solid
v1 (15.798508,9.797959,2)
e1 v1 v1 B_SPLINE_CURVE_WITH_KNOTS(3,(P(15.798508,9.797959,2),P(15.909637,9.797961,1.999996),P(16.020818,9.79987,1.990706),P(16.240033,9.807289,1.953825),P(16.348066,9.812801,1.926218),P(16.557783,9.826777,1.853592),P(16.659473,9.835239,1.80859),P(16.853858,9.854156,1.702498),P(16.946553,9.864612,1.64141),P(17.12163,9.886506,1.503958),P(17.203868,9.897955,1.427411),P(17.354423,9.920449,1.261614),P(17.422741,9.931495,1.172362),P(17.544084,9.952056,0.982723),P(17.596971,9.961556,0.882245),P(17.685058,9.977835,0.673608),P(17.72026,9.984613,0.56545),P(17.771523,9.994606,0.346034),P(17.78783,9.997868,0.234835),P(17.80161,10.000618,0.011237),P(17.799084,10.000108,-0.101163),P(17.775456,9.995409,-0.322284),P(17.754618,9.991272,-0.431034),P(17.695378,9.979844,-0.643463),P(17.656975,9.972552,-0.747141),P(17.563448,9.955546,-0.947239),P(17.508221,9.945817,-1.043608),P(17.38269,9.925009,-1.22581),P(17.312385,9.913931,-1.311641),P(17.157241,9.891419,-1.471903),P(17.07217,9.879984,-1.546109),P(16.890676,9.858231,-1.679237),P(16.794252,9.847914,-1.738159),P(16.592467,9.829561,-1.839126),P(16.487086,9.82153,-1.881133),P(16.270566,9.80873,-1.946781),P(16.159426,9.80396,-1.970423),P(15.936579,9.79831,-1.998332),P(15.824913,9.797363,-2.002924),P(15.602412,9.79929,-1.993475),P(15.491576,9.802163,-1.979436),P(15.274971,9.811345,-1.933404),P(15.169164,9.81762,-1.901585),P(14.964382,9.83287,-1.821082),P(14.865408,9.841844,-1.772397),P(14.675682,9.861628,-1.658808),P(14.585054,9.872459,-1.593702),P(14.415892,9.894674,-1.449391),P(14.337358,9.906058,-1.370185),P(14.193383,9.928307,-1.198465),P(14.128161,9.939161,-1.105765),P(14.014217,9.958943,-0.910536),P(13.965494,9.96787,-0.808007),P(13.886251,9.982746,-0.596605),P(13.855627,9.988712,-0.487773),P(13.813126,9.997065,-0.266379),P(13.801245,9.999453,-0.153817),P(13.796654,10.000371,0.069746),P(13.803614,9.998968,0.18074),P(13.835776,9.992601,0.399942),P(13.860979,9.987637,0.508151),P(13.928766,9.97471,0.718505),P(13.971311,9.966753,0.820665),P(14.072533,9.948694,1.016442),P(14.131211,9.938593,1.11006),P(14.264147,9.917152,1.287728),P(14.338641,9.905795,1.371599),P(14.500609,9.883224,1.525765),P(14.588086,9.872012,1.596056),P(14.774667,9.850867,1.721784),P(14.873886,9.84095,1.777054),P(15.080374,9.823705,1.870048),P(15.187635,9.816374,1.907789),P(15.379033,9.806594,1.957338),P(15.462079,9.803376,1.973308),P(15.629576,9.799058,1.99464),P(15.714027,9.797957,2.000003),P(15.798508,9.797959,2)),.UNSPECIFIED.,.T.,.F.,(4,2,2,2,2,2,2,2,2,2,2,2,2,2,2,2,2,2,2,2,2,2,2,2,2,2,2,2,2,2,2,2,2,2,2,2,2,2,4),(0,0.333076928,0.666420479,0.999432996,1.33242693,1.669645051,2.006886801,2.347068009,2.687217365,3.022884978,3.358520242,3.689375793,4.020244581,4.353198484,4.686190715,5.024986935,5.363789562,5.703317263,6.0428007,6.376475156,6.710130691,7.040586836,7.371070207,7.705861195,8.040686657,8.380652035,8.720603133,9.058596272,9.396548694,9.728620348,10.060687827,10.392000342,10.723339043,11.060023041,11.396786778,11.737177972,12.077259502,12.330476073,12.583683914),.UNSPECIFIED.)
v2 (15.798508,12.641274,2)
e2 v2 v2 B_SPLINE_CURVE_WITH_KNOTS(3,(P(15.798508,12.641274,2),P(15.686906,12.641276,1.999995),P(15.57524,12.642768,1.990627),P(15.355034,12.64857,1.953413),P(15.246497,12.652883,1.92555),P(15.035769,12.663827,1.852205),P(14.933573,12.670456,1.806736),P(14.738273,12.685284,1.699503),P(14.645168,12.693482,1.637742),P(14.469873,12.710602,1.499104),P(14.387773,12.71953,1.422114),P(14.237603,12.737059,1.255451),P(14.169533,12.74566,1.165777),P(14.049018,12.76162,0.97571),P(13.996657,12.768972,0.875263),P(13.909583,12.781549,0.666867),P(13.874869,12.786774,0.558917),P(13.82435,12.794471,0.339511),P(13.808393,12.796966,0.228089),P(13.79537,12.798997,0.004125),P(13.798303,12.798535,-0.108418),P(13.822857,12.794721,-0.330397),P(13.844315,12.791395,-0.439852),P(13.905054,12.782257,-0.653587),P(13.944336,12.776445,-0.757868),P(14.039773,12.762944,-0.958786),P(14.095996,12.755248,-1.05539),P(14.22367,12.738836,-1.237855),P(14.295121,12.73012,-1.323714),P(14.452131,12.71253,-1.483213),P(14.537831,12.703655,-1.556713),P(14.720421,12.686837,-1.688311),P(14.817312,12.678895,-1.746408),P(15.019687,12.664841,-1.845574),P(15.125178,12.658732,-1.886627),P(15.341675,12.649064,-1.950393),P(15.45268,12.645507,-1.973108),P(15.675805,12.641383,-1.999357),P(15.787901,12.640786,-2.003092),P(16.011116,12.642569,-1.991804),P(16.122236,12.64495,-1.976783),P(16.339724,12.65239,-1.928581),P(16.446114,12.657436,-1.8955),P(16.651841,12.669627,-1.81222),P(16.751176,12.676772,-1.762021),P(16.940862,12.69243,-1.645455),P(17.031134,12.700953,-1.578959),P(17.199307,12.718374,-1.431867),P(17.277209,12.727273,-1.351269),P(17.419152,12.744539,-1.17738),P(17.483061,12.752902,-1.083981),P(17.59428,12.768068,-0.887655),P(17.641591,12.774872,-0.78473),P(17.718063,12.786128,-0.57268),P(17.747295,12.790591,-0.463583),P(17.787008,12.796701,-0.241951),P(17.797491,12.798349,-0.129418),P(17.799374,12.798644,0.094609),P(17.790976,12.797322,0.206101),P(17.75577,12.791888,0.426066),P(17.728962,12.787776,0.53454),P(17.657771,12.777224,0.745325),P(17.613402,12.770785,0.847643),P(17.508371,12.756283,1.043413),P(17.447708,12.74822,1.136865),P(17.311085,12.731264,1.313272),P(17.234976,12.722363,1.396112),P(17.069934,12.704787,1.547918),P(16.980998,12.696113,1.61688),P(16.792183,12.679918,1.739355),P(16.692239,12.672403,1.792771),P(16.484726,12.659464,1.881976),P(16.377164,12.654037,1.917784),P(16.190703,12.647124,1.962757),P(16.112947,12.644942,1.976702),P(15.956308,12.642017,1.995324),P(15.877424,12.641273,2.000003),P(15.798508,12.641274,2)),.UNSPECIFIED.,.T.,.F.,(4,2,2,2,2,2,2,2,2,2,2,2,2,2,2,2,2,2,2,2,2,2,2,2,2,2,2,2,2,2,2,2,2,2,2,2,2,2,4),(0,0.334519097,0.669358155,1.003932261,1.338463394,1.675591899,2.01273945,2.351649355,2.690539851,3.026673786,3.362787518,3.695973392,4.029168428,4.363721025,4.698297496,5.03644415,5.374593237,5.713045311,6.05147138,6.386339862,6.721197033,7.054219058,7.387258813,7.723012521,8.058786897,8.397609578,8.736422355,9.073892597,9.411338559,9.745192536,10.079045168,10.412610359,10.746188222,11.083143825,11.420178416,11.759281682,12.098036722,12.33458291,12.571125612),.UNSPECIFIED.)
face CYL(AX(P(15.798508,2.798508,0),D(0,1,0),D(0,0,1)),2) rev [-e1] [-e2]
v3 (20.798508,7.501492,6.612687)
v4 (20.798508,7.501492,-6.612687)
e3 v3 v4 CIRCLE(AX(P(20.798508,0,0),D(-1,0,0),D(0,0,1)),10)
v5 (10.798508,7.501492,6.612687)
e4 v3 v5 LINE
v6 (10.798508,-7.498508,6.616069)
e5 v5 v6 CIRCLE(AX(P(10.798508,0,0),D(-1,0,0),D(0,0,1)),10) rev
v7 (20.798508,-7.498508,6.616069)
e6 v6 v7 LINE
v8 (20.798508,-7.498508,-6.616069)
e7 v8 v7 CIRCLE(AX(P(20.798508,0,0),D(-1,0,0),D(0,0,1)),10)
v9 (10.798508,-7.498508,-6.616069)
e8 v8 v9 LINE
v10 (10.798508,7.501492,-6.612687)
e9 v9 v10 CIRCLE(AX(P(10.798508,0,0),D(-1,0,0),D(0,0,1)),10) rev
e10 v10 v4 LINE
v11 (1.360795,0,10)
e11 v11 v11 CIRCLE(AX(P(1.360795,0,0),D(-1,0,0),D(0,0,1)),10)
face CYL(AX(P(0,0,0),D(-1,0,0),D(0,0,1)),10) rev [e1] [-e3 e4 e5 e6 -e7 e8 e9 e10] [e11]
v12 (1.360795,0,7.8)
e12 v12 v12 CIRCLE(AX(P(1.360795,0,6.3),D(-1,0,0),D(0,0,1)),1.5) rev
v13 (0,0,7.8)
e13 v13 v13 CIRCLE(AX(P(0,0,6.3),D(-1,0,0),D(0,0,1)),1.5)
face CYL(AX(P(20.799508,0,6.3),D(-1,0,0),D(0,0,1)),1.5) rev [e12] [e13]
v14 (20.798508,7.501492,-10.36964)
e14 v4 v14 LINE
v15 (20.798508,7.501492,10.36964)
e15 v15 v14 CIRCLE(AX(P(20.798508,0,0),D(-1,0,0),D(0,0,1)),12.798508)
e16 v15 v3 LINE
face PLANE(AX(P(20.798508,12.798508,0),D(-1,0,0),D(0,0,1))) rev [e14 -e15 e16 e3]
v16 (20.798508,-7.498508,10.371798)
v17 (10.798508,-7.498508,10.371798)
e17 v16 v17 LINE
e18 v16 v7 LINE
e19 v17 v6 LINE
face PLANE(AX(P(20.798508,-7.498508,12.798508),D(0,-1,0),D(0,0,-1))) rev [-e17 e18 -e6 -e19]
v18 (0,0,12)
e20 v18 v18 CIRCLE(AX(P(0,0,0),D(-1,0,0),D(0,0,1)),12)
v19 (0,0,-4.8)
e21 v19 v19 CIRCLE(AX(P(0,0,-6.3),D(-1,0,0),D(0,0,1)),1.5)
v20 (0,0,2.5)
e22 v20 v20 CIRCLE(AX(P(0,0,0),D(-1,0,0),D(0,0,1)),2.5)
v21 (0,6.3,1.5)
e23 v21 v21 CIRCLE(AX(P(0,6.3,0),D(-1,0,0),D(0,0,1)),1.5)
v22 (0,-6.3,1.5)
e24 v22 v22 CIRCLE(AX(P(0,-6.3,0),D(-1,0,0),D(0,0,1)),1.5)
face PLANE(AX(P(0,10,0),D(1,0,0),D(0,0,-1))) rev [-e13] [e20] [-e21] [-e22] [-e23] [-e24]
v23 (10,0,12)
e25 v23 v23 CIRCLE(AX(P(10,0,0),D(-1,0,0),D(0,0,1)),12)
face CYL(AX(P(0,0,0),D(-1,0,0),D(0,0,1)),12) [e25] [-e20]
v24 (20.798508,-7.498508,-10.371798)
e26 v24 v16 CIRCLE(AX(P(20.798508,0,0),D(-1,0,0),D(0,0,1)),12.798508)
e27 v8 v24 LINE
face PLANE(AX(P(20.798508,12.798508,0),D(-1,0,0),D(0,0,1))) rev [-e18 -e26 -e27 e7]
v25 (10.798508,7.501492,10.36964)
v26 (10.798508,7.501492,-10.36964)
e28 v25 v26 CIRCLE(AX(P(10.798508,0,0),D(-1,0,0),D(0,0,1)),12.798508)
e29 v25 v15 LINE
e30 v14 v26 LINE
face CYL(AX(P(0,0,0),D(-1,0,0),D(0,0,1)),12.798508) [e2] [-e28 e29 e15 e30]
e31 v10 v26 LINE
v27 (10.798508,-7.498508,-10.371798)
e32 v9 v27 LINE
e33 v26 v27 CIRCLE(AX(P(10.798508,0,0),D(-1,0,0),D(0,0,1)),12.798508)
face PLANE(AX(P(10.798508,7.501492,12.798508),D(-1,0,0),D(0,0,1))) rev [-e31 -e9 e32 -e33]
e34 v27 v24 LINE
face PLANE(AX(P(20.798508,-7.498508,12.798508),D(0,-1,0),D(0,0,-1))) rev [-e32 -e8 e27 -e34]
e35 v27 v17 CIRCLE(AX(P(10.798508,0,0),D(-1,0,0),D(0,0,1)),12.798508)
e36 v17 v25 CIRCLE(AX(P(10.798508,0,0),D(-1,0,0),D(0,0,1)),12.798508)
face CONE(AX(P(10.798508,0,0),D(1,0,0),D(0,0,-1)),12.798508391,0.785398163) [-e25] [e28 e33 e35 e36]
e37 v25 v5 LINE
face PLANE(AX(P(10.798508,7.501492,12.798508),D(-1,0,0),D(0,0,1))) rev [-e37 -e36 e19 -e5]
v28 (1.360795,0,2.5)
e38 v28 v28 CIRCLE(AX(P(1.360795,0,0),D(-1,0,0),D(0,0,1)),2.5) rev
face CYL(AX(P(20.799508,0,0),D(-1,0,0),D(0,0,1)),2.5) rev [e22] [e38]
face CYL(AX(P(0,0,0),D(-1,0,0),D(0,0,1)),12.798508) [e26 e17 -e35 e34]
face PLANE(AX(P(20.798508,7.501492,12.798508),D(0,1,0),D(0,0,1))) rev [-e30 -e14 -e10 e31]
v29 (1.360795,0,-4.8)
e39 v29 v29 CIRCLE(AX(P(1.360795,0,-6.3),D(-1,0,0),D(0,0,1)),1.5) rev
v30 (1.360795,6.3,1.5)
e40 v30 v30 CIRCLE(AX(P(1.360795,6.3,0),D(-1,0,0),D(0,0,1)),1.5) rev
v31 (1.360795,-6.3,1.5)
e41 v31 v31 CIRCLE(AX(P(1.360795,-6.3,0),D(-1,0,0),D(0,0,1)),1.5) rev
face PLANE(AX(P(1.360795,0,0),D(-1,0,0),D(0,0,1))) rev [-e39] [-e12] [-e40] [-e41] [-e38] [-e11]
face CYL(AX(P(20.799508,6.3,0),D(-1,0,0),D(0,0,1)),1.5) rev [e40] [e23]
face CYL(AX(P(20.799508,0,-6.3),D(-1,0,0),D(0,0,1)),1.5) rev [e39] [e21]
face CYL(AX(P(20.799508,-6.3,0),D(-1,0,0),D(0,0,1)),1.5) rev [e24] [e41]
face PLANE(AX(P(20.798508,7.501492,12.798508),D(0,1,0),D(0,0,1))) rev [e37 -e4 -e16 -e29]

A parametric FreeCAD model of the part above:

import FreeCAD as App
import Part
import Sketcher
Q = App.Units.Quantity


def add_polygon(sketch, points):
    """Adds a closed chain of lines whose ends are joined by coincident constraints."""
    first, n = sketch.GeometryCount, len(points)
    for a, b in zip(points, points[1:] + points[:1]):
        sketch.addGeometry(Part.LineSegment(App.Vector(*a, 0), App.Vector(*b, 0)), False)
    for i in range(n):
        sketch.addConstraint(Sketcher.Constraint("Coincident", first + i, 2, first + (i + 1) % n, 1))

doc = App.newDocument("Part")
body = doc.addObject("PartDesign::Body", "Body")

sketch1 = body.newObject("Sketcher::SketchObject", "Sketch")
sketch1.AttachmentSupport = (doc.getObject("XY_Plane"), [""])
sketch1.MapMode = "FlatFace"
add_polygon(sketch1, [(10, 12), (0, 12), (0, 0), (1.360795, 0), (1.360795, 10), (20.798508, 10), (20.798508, 12.798508), (10.798508, 12.798508)])
sketch1.addConstraint(Sketcher.Constraint("Horizontal", 0))
sketch1.addConstraint(Sketcher.Constraint("Vertical", 1))
sketch1.addConstraint(Sketcher.Constraint("Horizontal", 2))
sketch1.addConstraint(Sketcher.Constraint("Vertical", 3))
sketch1.addConstraint(Sketcher.Constraint("Horizontal", 4))
sketch1.addConstraint(Sketcher.Constraint("Vertical", 5))
sketch1.addConstraint(Sketcher.Constraint("Horizontal", 6))
sketch1.addConstraint(Sketcher.Constraint("Coincident", 1, 2, -1, 1))
sketch1.addConstraint(Sketcher.Constraint("Equal", 0, 6))
sketch1.addConstraint(Sketcher.Constraint("Equal", 6, 3))
sketch1.addConstraint(Sketcher.Constraint("DistanceX", 0, 2, 0, 1, 10.0))
sketch1.addConstraint(Sketcher.Constraint("DistanceY", 1, 2, 1, 1, 12.0))
sketch1.addConstraint(Sketcher.Constraint("Angle", 7, Q("-135 deg")))
sketch1.addConstraint(Sketcher.Constraint("DistanceY", 5, 1, 5, 2, 2.798508))
sketch1.addConstraint(Sketcher.Constraint("DistanceX", 2, 1, 2, 2, 1.360795))
revolution = body.newObject("PartDesign::Revolution", "Revolution")
revolution.Profile = sketch1
revolution.ReferenceAxis = (sketch1, ["H_Axis"])
revolution.Angle = 360

sketch2 = body.newObject("Sketcher::SketchObject", "Sketch001")
sketch2.AttachmentSupport = (doc.getObject("YZ_Plane"), [""])
sketch2.MapMode = "FlatFace"
sketch2.addGeometry(Part.Circle(App.Vector(0, 0, 0), App.Vector(0, 0, 1), 2.5), False)
sketch2.addConstraint(Sketcher.Constraint("Coincident", 0, 3, -1, 1))
sketch2.addConstraint(Sketcher.Constraint("Diameter", 0, 5.0))
pocket1 = body.newObject("PartDesign::Pocket", "Pocket")
pocket1.Profile = sketch2
pocket1.Type = "UpToFirst"
pocket1.Reversed = True

sketch3 = body.newObject("Sketcher::SketchObject", "Sketch002")
sketch3.AttachmentSupport = (doc.getObject("YZ_Plane"), [""])
sketch3.MapMode = "FlatFace"
sketch3.addGeometry(Part.Circle(App.Vector(6.3, 0, 0), App.Vector(0, 0, 1), 1.5), False)
sketch3.addConstraint(Sketcher.Constraint("PointOnObject", 0, 3, -1))
sketch3.addConstraint(Sketcher.Constraint("Diameter", 0, 3.0))
sketch3.addConstraint(Sketcher.Constraint("DistanceX", -1, 1, 0, 3, 6.3))
pocket2 = body.newObject("PartDesign::Pocket", "Pocket001")
pocket2.Profile = sketch3
pocket2.Type = "UpToFirst"
pocket2.Reversed = True

sketch4 = body.newObject("Sketcher::SketchObject", "Sketch003")
sketch4.AttachmentSupport = (doc.getObject("YZ_Plane"), [""])
sketch4.MapMode = "FlatFace"
sketch4.addGeometry(Part.Circle(App.Vector(0, 6.3, 0), App.Vector(0, 0, 1), 1.5), False)
sketch4.addConstraint(Sketcher.Constraint("PointOnObject", 0, 3, -2))
sketch4.addConstraint(Sketcher.Constraint("Diameter", 0, 3.0))
sketch4.addConstraint(Sketcher.Constraint("DistanceY", -1, 1, 0, 3, 6.3))
pocket3 = body.newObject("PartDesign::Pocket", "Pocket002")
pocket3.Profile = sketch4
pocket3.Type = "UpToFirst"
pocket3.Reversed = True

sketch5 = body.newObject("Sketcher::SketchObject", "Sketch004")
sketch5.AttachmentSupport = (doc.getObject("YZ_Plane"), [""])
sketch5.MapMode = "FlatFace"
sketch5.addGeometry(Part.Circle(App.Vector(-6.3, 0, 0), App.Vector(0, 0, 1), 1.5), False)
sketch5.addConstraint(Sketcher.Constraint("PointOnObject", 0, 3, -1))
sketch5.addConstraint(Sketcher.Constraint("Diameter", 0, 3.0))
sketch5.addConstraint(Sketcher.Constraint("DistanceX", 0, 3, -1, 1, 6.3))
pocket4 = body.newObject("PartDesign::Pocket", "Pocket003")
pocket4.Profile = sketch5
pocket4.Type = "UpToFirst"
pocket4.Reversed = True

sketch6 = body.newObject("Sketcher::SketchObject", "Sketch005")
sketch6.AttachmentSupport = (doc.getObject("YZ_Plane"), [""])
sketch6.MapMode = "FlatFace"
sketch6.addGeometry(Part.Circle(App.Vector(0, -6.3, 0), App.Vector(0, 0, 1), 1.5), False)
sketch6.addConstraint(Sketcher.Constraint("PointOnObject", 0, 3, -2))
sketch6.addConstraint(Sketcher.Constraint("Diameter", 0, 3.0))
sketch6.addConstraint(Sketcher.Constraint("DistanceY", 0, 3, -1, 1, 6.3))
pocket5 = body.newObject("PartDesign::Pocket", "Pocket004")
pocket5.Profile = sketch6
pocket5.Type = "UpToFirst"
pocket5.Reversed = True

sketch7 = body.newObject("Sketcher::SketchObject", "Sketch006")
sketch7.AttachmentSupport = (doc.getObject("XY_Plane"), [""])
sketch7.MapMode = "FlatFace"
add_polygon(sketch7, [(20.798508, -7.498508), (10.798508, -7.498508), (10.798508, 7.501492), (20.798508, 7.501492)])
sketch7.addConstraint(Sketcher.Constraint("Horizontal", 0))
sketch7.addConstraint(Sketcher.Constraint("Vertical", 1))
sketch7.addConstraint(Sketcher.Constraint("Horizontal", 2))
sketch7.addConstraint(Sketcher.Constraint("Vertical", 3))
sketch7.addConstraint(Sketcher.Constraint("DistanceX", 0, 2, 0, 1, 10.0))
sketch7.addConstraint(Sketcher.Constraint("DistanceY", 1, 1, 1, 2, 15.0))
sketch7.addConstraint(Sketcher.Constraint("DistanceX", -1, 1, 0, 2, 10.798508))
sketch7.addConstraint(Sketcher.Constraint("DistanceY", 0, 2, -1, 1, 7.498508))
pocket6 = body.newObject("PartDesign::Pocket", "Pocket005")
pocket6.Profile = sketch7
pocket6.Type = "ThroughAll"
pocket6.Midplane = True

sketch8 = body.newObject("Sketcher::SketchObject", "Sketch007")
sketch8.AttachmentSupport = (doc.getObject("XZ_Plane"), [""])
sketch8.MapMode = "FlatFace"
sketch8.AttachmentOffset = App.Placement(App.Vector(0, 0, -12.798508), App.Rotation())
sketch8.addGeometry(Part.Circle(App.Vector(15.798508, 0, 0), App.Vector(0, 0, 1), 2), False)
sketch8.addConstraint(Sketcher.Constraint("PointOnObject", 0, 3, -1))
sketch8.addConstraint(Sketcher.Constraint("Diameter", 0, 4.0))
sketch8.addConstraint(Sketcher.Constraint("DistanceX", -1, 1, 0, 3, 15.798508))
pocket7 = body.newObject("PartDesign::Pocket", "Pocket006")
pocket7.Profile = sketch8
pocket7.Length = 10
pocket7.Reversed = True

doc.recompute()
